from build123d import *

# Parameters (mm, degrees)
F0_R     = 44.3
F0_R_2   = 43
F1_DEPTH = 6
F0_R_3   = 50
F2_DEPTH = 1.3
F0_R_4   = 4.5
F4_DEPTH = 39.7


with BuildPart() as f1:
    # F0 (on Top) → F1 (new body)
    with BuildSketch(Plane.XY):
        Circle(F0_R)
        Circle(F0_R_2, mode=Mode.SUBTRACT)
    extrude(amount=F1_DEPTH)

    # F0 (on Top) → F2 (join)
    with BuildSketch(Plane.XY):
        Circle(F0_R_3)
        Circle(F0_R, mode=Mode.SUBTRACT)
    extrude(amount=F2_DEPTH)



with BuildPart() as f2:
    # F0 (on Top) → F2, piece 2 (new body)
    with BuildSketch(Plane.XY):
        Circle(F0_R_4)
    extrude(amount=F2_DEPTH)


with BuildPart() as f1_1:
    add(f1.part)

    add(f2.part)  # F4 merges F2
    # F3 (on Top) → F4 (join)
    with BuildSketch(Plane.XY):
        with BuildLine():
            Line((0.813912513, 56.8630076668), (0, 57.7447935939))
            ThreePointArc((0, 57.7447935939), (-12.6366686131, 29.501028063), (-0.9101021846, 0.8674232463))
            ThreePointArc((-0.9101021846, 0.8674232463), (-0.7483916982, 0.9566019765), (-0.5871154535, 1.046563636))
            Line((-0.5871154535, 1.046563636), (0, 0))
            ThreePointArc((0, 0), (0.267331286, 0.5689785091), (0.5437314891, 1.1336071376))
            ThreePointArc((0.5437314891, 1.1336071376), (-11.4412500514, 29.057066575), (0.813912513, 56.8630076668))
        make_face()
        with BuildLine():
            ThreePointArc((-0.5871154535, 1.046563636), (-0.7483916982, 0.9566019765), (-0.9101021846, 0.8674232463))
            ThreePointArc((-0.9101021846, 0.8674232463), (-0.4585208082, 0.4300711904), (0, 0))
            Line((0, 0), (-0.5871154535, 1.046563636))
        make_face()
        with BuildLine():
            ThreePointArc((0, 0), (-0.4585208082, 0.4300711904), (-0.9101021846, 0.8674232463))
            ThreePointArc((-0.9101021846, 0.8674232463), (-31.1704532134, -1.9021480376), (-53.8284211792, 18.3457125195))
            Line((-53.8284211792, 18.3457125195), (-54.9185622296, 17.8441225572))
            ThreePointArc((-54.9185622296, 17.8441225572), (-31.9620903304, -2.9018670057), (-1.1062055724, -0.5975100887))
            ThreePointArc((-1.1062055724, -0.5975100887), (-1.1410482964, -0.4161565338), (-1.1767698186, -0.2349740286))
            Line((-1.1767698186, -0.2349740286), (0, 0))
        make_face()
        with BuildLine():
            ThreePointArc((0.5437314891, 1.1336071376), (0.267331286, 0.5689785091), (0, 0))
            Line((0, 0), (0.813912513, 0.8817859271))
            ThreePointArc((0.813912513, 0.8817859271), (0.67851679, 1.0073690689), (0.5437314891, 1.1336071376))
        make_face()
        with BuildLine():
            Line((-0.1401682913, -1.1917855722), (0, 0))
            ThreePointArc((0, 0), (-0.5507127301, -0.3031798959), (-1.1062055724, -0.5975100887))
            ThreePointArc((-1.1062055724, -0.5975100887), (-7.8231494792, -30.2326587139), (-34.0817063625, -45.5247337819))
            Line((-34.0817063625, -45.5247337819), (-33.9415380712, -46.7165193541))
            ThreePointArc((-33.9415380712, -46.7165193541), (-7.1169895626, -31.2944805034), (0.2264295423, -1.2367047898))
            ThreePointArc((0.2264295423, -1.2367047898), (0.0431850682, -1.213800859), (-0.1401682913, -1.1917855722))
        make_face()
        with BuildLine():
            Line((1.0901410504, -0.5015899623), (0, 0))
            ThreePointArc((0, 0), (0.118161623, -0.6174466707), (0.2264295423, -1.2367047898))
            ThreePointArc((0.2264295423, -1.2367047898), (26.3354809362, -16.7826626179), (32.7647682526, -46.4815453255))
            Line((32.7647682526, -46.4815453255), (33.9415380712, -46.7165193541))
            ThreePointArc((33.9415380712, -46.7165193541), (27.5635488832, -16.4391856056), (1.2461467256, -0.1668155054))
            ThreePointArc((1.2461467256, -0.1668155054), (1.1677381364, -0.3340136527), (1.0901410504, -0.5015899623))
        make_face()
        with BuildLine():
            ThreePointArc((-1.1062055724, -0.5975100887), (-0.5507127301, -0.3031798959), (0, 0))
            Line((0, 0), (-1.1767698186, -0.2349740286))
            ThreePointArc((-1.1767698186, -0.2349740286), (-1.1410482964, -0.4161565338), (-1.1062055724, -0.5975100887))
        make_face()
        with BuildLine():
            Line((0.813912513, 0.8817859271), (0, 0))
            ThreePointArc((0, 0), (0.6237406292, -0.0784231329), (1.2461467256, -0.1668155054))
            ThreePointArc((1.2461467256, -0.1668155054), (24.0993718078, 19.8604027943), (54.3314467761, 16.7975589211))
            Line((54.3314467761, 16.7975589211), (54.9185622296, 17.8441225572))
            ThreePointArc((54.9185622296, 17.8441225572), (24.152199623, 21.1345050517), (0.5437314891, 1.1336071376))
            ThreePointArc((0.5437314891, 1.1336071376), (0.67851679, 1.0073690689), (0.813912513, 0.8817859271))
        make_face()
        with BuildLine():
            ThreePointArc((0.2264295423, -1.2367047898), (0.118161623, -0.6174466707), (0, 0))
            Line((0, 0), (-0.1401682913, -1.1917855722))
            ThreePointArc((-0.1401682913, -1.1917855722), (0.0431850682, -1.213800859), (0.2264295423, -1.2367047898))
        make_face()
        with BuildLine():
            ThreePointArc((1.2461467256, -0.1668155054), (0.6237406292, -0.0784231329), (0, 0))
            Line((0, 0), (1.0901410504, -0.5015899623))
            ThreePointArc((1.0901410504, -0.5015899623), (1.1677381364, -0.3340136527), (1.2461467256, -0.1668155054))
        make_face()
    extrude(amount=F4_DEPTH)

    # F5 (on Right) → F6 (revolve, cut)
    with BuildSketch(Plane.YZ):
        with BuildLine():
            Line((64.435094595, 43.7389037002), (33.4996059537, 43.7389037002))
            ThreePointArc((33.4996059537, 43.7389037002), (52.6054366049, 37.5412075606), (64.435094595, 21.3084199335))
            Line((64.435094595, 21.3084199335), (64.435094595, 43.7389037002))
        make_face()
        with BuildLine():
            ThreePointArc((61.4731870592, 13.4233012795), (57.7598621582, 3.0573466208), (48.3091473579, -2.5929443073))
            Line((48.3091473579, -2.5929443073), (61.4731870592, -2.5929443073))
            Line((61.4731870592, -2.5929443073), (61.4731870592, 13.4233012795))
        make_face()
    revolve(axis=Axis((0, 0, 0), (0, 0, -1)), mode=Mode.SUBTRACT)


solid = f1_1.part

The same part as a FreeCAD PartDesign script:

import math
import FreeCAD as App
import Part
import Sketcher

V = App.Vector

doc = App.newDocument("Part")
body = doc.addObject("PartDesign::Body", "Body")

sketch1 = body.newObject("Sketcher::SketchObject", "Sketch")
sketch1.AttachmentSupport = (doc.getObject("XY_Plane"), [""])
sketch1.MapMode = "FlatFace"
sketch1.addGeometry([
    Part.Circle(V(0, 0, 0), V(0, 0, 1), 44.3),
    Part.Circle(V(0, 0, 0), V(0, 0, 1), 43),
], False)
sketch1.addConstraint([
    Sketcher.Constraint("Coincident", 0, 3, -1, 1),
    Sketcher.Constraint("Coincident", 1, 3, -1, 1),
    Sketcher.Constraint("Diameter", 1, 86.0),
    Sketcher.Constraint("Diameter", 0, 88.6),
])
pad1 = body.newObject("PartDesign::Pad", "Pad")
pad1.Profile = sketch1
pad1.Length = 6

sketch2 = body.newObject("Sketcher::SketchObject", "Sketch001")
sketch2.AttachmentSupport = (doc.getObject("XY_Plane"), [""])
sketch2.MapMode = "FlatFace"
sketch2.addGeometry([
    Part.Circle(V(0, 0, 0), V(0, 0, 1), 50),
    Part.Circle(V(0, 0, 0), V(0, 0, 1), 44.3),
], False)
sketch2.addConstraint([
    Sketcher.Constraint("Coincident", 0, 3, -1, 1),
    Sketcher.Constraint("Coincident", 1, 3, -1, 1),
    Sketcher.Constraint("Diameter", 0, 100.0),
    Sketcher.Constraint("Diameter", 1, 88.6),
])
pad2 = body.newObject("PartDesign::Pad", "Pad001")
pad2.Profile = sketch2
pad2.Length = 1.3
body2 = doc.addObject("PartDesign::Body", "Body001")

sketch3 = body2.newObject("Sketcher::SketchObject", "Sketch002")
sketch3.AttachmentSupport = (doc.getObject("XY_Plane001"), [""])
sketch3.MapMode = "FlatFace"
sketch3.addGeometry(Part.Circle(V(0, 0, 0), V(0, 0, 1), 4.5), False)
sketch3.addConstraint([
    Sketcher.Constraint("Coincident", 0, 3, -1, 1),
    Sketcher.Constraint("Diameter", 0, 9.0),
])
pad3 = body2.newObject("PartDesign::Pad", "Pad002")
pad3.Profile = sketch3
pad3.Length = 1.3
body.AllowCompound = True
doc.recompute()

boolean = body.newObject("PartDesign::Boolean", "Boolean")
boolean.Type = "Fuse"
boolean.addObjects([body2])

sketch4 = body.newObject("Sketcher::SketchObject", "Sketch003")
sketch4.AttachmentSupport = (doc.getObject("XY_Plane"), [""])
sketch4.MapMode = "FlatFace"
sketch4.addGeometry([
    Part.ArcOfCircle(Part.Circle(V(-4.589543, -39.022743, 0), V(0, 0, 1), 39.291709), math.radians(-11.292144), math.radians(81.458706)),
    Part.ArcOfCircle(Part.Circle(V(35.694588, -16.423606, 0), V(0, 0, 1), 38.091709), math.radians(60.707856), math.radians(154.736599)),
    Part.LineSegment(V(54.331447, 16.797559, 0), V(54.918562, 17.844123, 0)),
    Part.ArcOfCircle(Part.Circle(V(35.694588, -16.423606, 0), V(0, 0, 1), 39.291709), math.radians(60.707856), math.radians(153.458706)),
    Part.ArcOfCircle(Part.Circle(V(26.650011, 28.872397, 0), V(0, 0, 1), 38.091709), math.radians(132.707856), math.radians(226.736599)),
    Part.LineSegment(V(0.813913, 56.863008, 0), V(0, 57.744794, 0)),
    Part.ArcOfCircle(Part.Circle(V(26.650011, 28.872397, 0), V(0, 0, 1), 39.291709), math.radians(132.707856), math.radians(225.458706)),
    Part.ArcOfCircle(Part.Circle(V(-19.223975, 34.267728, 0), V(0, 0, 1), 38.091709), math.radians(-155.292144), math.radians(-61.263401)),
    Part.LineSegment(V(-53.828421, 18.345713, 0), V(-54.918562, 17.844123, 0)),
    Part.ArcOfCircle(Part.Circle(V(-19.223975, 34.267728, 0), V(0, 0, 1), 39.291709), math.radians(-155.292144), math.radians(-62.541294)),
    Part.ArcOfCircle(Part.Circle(V(-38.531081, -7.693776, 0), V(0, 0, 1), 38.091709), math.radians(-83.292144), math.radians(10.736599)),
    Part.LineSegment(V(-34.081706, -45.524734, 0), V(-33.941538, -46.716519, 0)),
    Part.ArcOfCircle(Part.Circle(V(-38.531081, -7.693776, 0), V(0, 0, 1), 39.291709), math.radians(-83.292144), math.radians(9.458706)),
    Part.ArcOfCircle(Part.Circle(V(-4.589543, -39.022743, 0), V(0, 0, 1), 38.091709), math.radians(-11.292144), math.radians(82.736599)),
    Part.LineSegment(V(32.764768, -46.481545, 0), V(33.941538, -46.716519, 0)),
], False)
sketch4.addConstraint([
    Sketcher.Constraint("Coincident", 0, 2, 1, 2),
    Sketcher.Constraint("Coincident", 1, 1, 2, 1),
    Sketcher.Constraint("Coincident", 2, 2, 3, 1),
    Sketcher.Constraint("Coincident", 3, 2, 4, 2),
    Sketcher.Constraint("Coincident", 4, 1, 5, 1),
    Sketcher.Constraint("Coincident", 5, 2, 6, 1),
    Sketcher.Constraint("Coincident", 6, 2, 7, 2),
    Sketcher.Constraint("Coincident", 7, 1, 8, 1),
    Sketcher.Constraint("Coincident", 8, 2, 9, 1),
    Sketcher.Constraint("Coincident", 9, 2, 10, 2),
    Sketcher.Constraint("Coincident", 10, 1, 11, 1),
    Sketcher.Constraint("Coincident", 11, 2, 12, 1),
    Sketcher.Constraint("Coincident", 12, 2, 13, 2),
    Sketcher.Constraint("Coincident", 13, 1, 14, 1),
    Sketcher.Constraint("Coincident", 14, 2, 0, 1),
    Sketcher.Constraint("Coincident", 3, 3, 1, 3),
    Sketcher.Constraint("Coincident", 6, 3, 4, 3),
    Sketcher.Constraint("Coincident", 9, 3, 7, 3),
    Sketcher.Constraint("Coincident", 12, 3, 10, 3),
    Sketcher.Constraint("Coincident", 13, 3, 0, 3),
    Sketcher.Constraint("Equal", 0, 3),
    Sketcher.Constraint("Equal", 1, 4),
    Sketcher.Constraint("Equal", 3, 6),
    Sketcher.Constraint("Equal", 4, 7),
    Sketcher.Constraint("Equal", 6, 9),
    Sketcher.Constraint("Equal", 7, 10),
    Sketcher.Constraint("Equal", 9, 12),
    Sketcher.Constraint("Equal", 10, 13),
    Sketcher.Constraint("Symmetric", 2, 2, 8, 2, -2),
    Sketcher.Constraint("Symmetric", 11, 2, 14, 2, -2),
    Sketcher.Constraint("PointOnObject", 5, 2, -2),
    Sketcher.Constraint("Distance", 2, 1.2),
    Sketcher.Constraint("Radius", 0, 39.291709),
    Sketcher.Constraint("DistanceX", 0, 2, 1, 1, 53.0853),
    Sketcher.Constraint("DistanceX", 4, 1, 4, 3, 25.836099),
    Sketcher.Constraint("DistanceY", 3, 2, 4, 1, 55.729401),
    Sketcher.Constraint("DistanceY", 10, 3, 6, 2, 8.561199),
    Sketcher.Constraint("DistanceY", 10, 3, 8, 2, 25.537899),
    Sketcher.Constraint("DistanceX", 10, 1, 9, 2, 32.975501),
    Sketcher.Constraint("DistanceX", 12, 2, 3, 2, 0.317302),
    Sketcher.Constraint("DistanceY", 13, 1, 0, 3, 7.458802),
    Sketcher.Constraint("DistanceX", -1, 1, 4, 3, 26.650011),
    Sketcher.Constraint("DistanceY", -1, 1, 7, 3, 34.267728),
    Sketcher.Constraint("DistanceX", 10, 3, -1, 1, 38.531081),
    Sketcher.Constraint("DistanceY", -1, 1, 1, 1, 16.797559),
    Sketcher.Constraint("DistanceX", 7, 1, -1, 1, 53.828421),
    Sketcher.Constraint("DistanceY", 9, 2, -1, 1, 0.59751),
    Sketcher.Constraint("DistanceX", 11, 2, -1, 1, 33.941538),
])
pad4 = body.newObject("PartDesign::Pad", "Pad003")
pad4.Profile = sketch4
pad4.Length = 39.7

sketch5 = body.newObject("Sketcher::SketchObject", "Sketch004")
sketch5.AttachmentSupport = (doc.getObject("YZ_Plane"), [""])
sketch5.MapMode = "FlatFace"
sketch5.addGeometry([
    Part.LineSegment(V(64.435095, 43.738904, 0), V(33.499606, 43.738904, 0)),
    Part.ArcOfCircle(Part.Circle(V(33.499606, 11.190986, 0), V(0, 0, 1), 32.547917), math.radians(18.110303), math.radians(90)),
    Part.LineSegment(V(64.435095, 21.30842, 0), V(64.435095, 43.738904, 0)),
    Part.ArcOfCircle(Part.Circle(V(45.147953, 13.423301, 0), V(0, 0, 1), 16.325234), math.radians(-78.834798), math.radians(0)),
    Part.LineSegment(V(48.309147, -2.592944, 0), V(61.473187, -2.592944, 0)),
    Part.LineSegment(V(61.473187, -2.592944, 0), V(61.473187, 13.423301, 0)),
], False)
sketch5.addConstraint([
    Sketcher.Constraint("Tangent", 0, 2, 1, 2),
    Sketcher.Constraint("Coincident", 1, 1, 2, 1),
    Sketcher.Constraint("Coincident", 2, 2, 0, 1),
    Sketcher.Constraint("Coincident", 3, 1, 4, 1),
    Sketcher.Constraint("Coincident", 4, 2, 5, 1),
    Sketcher.Constraint("Tangent", 5, 2, 3, 2),
    Sketcher.Constraint("Horizontal", 0),
    Sketcher.Constraint("Vertical", 2),
    Sketcher.Constraint("Horizontal", 4),
    Sketcher.Constraint("Vertical", 5),
    Sketcher.Constraint("Radius", 1, 32.547917),
    Sketcher.Constraint("Radius", 3, 16.325234),
    Sketcher.Constraint("DistanceX", 0, 2, 0, 1, 30.935489),
    Sketcher.Constraint("DistanceX", 4, 1, 4, 2, 13.16404),
    Sketcher.Constraint("DistanceY", -1, 1, 3, 3, 13.423301),
    Sketcher.Constraint("DistanceY", -1, 1, 1, 1, 21.30842),
    Sketcher.Constraint("DistanceX", 3, 3, 1, 1, 19.287142),
    Sketcher.Constraint("DistanceX", -1, 1, 1, 3, 33.499606),
])
groove = body.newObject("PartDesign::Groove", "Groove")
groove.Profile = sketch5
groove.ReferenceAxis = (sketch5, ["V_Axis"])
groove.Angle = 360

doc.recompute()
